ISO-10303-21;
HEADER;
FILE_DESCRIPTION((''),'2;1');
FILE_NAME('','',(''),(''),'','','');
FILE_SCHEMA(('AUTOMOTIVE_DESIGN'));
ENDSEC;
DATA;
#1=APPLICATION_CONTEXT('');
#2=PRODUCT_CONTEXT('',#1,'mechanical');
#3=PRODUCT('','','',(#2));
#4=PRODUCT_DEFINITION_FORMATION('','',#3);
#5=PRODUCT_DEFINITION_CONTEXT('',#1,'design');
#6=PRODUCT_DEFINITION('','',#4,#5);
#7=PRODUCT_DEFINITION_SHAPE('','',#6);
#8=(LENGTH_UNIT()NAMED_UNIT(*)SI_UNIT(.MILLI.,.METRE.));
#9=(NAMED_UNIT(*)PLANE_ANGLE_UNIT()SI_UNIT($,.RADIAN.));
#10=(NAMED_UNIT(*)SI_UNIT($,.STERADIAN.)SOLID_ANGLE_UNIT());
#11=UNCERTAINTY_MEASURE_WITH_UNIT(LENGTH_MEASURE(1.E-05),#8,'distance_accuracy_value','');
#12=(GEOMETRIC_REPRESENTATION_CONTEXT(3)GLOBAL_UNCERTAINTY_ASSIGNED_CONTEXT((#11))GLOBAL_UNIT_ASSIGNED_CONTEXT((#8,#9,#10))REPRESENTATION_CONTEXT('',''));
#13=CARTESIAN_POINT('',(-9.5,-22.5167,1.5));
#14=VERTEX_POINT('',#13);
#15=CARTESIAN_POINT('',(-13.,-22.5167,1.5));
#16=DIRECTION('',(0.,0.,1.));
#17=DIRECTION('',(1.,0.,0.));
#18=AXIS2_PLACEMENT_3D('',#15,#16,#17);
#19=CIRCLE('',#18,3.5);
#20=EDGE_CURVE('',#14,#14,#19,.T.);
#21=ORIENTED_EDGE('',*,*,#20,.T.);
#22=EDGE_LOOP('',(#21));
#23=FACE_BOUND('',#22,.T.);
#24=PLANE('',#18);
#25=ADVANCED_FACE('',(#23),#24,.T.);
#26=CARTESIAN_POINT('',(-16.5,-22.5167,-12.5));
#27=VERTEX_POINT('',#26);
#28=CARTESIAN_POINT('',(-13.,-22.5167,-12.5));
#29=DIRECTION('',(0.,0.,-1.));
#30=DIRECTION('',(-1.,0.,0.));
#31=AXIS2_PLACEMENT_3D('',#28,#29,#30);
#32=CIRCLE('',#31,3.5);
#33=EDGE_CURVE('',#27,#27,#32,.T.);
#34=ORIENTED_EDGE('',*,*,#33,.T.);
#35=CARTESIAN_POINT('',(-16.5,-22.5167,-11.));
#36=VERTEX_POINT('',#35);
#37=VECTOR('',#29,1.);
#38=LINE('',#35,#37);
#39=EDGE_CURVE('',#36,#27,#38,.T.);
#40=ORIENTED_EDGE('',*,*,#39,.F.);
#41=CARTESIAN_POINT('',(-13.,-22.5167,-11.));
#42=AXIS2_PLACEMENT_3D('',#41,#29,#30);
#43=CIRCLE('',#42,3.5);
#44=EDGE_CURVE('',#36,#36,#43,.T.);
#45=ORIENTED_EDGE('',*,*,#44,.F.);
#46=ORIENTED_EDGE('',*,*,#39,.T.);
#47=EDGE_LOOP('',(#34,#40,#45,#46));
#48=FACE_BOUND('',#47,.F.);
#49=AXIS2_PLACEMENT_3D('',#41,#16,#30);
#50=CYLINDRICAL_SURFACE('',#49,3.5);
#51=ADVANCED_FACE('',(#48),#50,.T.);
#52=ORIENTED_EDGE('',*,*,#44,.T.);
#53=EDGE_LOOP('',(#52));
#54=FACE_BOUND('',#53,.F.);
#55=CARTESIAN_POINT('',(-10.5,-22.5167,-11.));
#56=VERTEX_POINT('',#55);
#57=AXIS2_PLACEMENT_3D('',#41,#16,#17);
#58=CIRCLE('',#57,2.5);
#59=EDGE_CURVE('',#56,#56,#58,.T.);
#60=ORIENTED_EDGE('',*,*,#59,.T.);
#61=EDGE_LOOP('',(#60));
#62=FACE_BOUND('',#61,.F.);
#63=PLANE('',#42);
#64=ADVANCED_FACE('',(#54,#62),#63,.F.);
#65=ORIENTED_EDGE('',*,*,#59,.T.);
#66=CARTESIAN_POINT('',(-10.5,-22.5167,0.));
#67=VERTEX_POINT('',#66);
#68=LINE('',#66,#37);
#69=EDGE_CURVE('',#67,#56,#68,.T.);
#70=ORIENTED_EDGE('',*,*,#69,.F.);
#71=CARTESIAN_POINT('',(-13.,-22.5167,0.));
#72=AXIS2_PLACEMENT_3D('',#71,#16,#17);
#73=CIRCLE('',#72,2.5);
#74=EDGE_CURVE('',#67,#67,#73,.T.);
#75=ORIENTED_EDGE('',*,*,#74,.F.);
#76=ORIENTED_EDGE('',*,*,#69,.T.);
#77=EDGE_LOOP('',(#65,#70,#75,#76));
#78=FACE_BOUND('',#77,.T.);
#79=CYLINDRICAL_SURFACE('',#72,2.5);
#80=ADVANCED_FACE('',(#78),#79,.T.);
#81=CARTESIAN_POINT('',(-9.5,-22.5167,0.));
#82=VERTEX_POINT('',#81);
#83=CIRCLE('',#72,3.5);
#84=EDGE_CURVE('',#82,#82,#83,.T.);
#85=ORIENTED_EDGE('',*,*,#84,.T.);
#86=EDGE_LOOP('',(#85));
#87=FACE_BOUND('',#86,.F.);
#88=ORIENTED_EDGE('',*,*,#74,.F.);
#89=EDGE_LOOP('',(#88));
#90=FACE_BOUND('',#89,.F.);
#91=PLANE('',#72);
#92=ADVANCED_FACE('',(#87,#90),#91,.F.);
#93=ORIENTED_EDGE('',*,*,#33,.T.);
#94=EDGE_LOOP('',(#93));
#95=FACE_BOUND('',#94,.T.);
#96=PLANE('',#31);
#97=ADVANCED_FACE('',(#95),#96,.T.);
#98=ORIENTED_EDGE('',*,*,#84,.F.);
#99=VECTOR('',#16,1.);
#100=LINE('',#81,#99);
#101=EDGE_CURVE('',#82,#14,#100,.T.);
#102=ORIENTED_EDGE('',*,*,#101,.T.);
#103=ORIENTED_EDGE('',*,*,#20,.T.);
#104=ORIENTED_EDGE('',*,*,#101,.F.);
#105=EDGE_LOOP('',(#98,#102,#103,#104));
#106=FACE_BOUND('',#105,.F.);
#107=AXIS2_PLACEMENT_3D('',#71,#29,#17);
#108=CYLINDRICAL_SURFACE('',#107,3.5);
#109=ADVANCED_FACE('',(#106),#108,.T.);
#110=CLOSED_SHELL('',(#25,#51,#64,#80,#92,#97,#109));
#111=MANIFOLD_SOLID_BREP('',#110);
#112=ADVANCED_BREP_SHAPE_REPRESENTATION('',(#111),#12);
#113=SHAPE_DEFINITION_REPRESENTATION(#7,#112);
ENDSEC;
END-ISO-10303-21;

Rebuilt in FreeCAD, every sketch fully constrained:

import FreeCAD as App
import Part
import Sketcher

doc = App.newDocument("Part")
body = doc.addObject("PartDesign::Body", "Body")

sketch1 = doc.addObject("Sketcher::SketchObject", "Sketch")
body.addObject(sketch1)
sketch1.AttachmentSupport = (doc.XY_Plane, [""])
sketch1.MapMode = "FlatFace"
sketch1.addGeometry(Part.Circle(App.Vector(-13, -22.5, 0), App.Vector(0, 0, 1), 2.5), False)
sketch1.addConstraint(Sketcher.Constraint("Diameter", 0, 5.0))
sketch1.addConstraint(Sketcher.Constraint("DistanceX", 0, 3, -1, 1, 13.0))
sketch1.addConstraint(Sketcher.Constraint("DistanceY", 0, 3, -1, 1, 22.5167))
pad1 = doc.addObject("PartDesign::Pad", "Pad")
body.addObject(pad1)
pad1.Profile = sketch1
pad1.Length = 11
pad1.Reversed = True

sketch2 = doc.addObject("Sketcher::SketchObject", "Sketch001")
body.addObject(sketch2)
sketch2.AttachmentSupport = (doc.XY_Plane, [""])
sketch2.MapMode = "FlatFace"
sketch2.AttachmentOffset = App.Placement(App.Vector(0, 0, -11), App.Rotation())
sketch2.addGeometry(Part.Circle(App.Vector(-13, -22.5, 0), App.Vector(0, 0, 1), 3.5), False)
sketch2.addConstraint(Sketcher.Constraint("Diameter", 0, 7.0))
sketch2.addConstraint(Sketcher.Constraint("DistanceX", 0, 3, -1, 1, 13.0))
sketch2.addConstraint(Sketcher.Constraint("DistanceY", 0, 3, -1, 1, 22.5167))
pad2 = doc.addObject("PartDesign::Pad", "Pad001")
body.addObject(pad2)
pad2.Profile = sketch2
pad2.Length = 1.5
pad2.Reversed = True

sketch3 = doc.addObject("Sketcher::SketchObject", "Sketch002")
body.addObject(sketch3)
sketch3.AttachmentSupport = (doc.XY_Plane, [""])
sketch3.MapMode = "FlatFace"
sketch3.addGeometry(Part.Circle(App.Vector(-13, -22.5, 0), App.Vector(0, 0, 1), 3.5), False)
sketch3.addConstraint(Sketcher.Constraint("Diameter", 0, 7.0))
sketch3.addConstraint(Sketcher.Constraint("DistanceX", 0, 3, -1, 1, 13.0))
sketch3.addConstraint(Sketcher.Constraint("DistanceY", 0, 3, -1, 1, 22.5167))
pad3 = doc.addObject("PartDesign::Pad", "Pad002")
body.addObject(pad3)
pad3.Profile = sketch3
pad3.Length = 1.5

doc.recompute()
